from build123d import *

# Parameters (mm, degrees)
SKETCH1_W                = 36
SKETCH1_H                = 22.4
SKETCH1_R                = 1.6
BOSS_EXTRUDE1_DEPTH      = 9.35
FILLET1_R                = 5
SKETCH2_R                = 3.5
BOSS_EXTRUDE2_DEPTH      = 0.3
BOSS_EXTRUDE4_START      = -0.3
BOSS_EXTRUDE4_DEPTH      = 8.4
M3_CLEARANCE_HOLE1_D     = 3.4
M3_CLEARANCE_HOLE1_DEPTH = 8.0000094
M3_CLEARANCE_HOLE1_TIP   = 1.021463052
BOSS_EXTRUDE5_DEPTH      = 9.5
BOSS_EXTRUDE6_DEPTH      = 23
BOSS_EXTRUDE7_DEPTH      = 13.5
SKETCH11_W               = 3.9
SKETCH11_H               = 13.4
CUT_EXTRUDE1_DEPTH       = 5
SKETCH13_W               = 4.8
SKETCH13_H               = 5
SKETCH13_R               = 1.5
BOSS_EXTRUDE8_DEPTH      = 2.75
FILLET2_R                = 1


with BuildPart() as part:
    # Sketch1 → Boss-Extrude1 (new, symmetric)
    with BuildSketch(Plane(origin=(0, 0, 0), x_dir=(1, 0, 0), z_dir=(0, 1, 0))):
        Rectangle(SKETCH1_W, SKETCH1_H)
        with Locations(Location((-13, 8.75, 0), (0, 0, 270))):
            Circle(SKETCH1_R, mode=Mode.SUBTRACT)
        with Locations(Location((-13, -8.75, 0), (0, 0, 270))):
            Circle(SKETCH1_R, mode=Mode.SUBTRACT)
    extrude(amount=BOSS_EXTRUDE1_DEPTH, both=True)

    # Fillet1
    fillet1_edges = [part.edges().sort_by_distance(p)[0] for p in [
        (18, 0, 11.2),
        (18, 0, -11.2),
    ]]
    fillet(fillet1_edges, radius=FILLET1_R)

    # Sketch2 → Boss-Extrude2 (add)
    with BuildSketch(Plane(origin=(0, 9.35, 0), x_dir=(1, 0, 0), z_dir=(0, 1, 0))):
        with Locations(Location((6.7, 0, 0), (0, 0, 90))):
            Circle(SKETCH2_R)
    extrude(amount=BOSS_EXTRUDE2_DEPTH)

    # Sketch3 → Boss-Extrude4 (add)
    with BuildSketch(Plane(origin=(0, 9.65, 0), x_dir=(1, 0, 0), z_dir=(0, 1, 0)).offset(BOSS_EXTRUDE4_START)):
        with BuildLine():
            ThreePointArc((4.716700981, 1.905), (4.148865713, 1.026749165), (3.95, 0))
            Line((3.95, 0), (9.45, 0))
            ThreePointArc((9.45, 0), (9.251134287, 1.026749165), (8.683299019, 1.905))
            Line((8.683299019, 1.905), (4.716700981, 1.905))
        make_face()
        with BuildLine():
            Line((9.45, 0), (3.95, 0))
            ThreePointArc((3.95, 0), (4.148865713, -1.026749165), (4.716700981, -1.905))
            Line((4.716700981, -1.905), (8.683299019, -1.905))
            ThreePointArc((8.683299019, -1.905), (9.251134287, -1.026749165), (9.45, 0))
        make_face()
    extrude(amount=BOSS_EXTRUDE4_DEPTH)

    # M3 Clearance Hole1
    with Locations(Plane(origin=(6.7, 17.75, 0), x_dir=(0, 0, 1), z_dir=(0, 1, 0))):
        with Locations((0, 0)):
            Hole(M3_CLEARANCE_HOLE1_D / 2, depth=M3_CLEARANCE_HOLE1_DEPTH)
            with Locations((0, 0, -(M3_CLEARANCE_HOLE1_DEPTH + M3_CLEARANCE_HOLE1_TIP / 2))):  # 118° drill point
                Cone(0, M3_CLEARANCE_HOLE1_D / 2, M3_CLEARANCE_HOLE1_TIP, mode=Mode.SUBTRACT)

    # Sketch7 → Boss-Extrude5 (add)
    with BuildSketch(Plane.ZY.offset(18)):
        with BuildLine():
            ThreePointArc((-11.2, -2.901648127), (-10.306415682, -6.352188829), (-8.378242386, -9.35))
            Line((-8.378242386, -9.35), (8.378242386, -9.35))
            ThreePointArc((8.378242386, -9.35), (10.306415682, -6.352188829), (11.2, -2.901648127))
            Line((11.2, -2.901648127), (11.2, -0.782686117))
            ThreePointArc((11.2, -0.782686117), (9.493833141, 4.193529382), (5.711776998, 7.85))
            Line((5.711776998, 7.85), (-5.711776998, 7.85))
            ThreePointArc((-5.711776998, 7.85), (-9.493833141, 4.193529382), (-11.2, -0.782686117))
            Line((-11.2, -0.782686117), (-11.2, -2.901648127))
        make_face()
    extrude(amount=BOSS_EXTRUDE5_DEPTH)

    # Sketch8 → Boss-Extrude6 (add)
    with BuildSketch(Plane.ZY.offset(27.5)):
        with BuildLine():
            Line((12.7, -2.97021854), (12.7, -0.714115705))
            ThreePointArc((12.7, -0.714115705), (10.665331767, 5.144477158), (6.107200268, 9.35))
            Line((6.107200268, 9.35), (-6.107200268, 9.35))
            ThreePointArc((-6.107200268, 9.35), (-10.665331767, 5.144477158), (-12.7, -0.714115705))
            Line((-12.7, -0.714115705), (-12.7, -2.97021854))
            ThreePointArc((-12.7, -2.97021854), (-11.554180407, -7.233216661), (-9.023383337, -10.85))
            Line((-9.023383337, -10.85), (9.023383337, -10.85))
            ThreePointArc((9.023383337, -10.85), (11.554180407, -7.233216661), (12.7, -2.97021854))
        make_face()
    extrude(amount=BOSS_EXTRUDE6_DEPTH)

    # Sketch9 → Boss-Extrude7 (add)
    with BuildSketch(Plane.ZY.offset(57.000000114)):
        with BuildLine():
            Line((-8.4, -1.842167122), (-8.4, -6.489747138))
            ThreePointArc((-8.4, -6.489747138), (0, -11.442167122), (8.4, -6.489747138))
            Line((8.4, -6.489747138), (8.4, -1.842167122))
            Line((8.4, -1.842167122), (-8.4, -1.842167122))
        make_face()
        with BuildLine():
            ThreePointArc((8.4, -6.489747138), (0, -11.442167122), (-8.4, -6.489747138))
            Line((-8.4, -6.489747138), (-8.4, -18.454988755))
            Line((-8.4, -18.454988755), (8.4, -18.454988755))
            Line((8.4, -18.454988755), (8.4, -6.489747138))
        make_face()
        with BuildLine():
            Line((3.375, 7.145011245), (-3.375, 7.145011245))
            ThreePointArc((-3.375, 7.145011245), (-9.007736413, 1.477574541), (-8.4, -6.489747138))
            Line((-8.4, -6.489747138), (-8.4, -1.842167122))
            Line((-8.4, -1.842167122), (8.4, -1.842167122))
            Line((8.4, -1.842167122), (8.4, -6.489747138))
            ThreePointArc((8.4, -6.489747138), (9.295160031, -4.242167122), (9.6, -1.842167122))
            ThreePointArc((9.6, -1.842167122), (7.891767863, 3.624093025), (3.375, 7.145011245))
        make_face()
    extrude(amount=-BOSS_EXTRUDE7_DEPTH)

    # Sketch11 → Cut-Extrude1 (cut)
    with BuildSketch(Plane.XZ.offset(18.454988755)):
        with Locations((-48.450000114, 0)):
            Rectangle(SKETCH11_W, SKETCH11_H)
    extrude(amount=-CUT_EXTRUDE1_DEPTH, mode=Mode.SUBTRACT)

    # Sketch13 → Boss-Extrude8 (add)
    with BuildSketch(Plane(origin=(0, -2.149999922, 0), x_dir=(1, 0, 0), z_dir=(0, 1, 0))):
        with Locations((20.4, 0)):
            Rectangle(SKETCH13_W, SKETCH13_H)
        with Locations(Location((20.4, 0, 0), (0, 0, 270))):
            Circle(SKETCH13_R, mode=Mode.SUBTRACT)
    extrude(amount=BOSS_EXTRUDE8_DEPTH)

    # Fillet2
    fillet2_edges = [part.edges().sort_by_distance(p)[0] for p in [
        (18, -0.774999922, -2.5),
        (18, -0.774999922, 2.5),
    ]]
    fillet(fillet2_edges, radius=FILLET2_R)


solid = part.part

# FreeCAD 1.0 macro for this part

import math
import FreeCAD as App
import Part
import Sketcher

V = App.Vector


def edges_at(feature, points):
    """Names of the edges that pass closest to the given points."""
    edges = feature.Shape.Edges
    near = lambda p: min(range(len(edges)), key=lambda i: edges[i].distToShape(Part.Vertex(*p))[0])
    return sorted({f"Edge{near(p) + 1}" for p in points})


def add_polygon(sketch, points):
    """Adds a closed chain of lines whose ends are joined by coincident constraints."""
    first, n = sketch.GeometryCount, len(points)
    for a, b in zip(points, points[1:] + points[:1]):
        sketch.addGeometry(Part.LineSegment(App.Vector(*a, 0), App.Vector(*b, 0)), False)
    for i in range(n):
        sketch.addConstraint(Sketcher.Constraint("Coincident", first + i, 2, first + (i + 1) % n, 1))

doc = App.newDocument("Part")
params = doc.addObject("Spreadsheet::Sheet", "Params")
for row, (alias, value) in enumerate([
    ("sketch1_diameter", "3.2 mm"),
    ("sketch1_width", "36 mm"),
    ("sketch1_height", "22.4 mm"),
    ("pad1_length", "18.7 mm"),
    ("fillet_radius", "5 mm"),
    ("sketch2_diameter", "7 mm"),
    ("pad2_length", "0.3 mm"),
    ("sketch3_radius", "2.75 mm"),
    ("pad3_length", "8.4 mm"),
    ("sketch4_diameter", "3.4 mm"),
    ("hole_diameter", "3.4 mm"),
    ("hole_depth", "8.000009 mm"),
    ("sketch5_radius", "11.25 mm"),
    ("pad4_length", "9.5 mm"),
    ("sketch6_radius", "12.75 mm"),
    ("pad5_length", "23 mm"),
    ("sketch7_radius", "9.6 mm"),
    ("sketch7_height", "16.8 mm"),
    ("sketch7_height2", "6.75 mm"),
    ("pad6_length", "13.5 mm"),
    ("sketch8_width", "3.9 mm"),
    ("sketch8_height", "13.4 mm"),
    ("pocket1_length", "5 mm"),
    ("sketch9_diameter", "3 mm"),
    ("sketch9_height", "5 mm"),
    ("sketch9_width", "4.8 mm"),
    ("pad7_length", "2.75 mm"),
    ("fillet2_radius", "1 mm"),
], start=1):
    params.set(f"A{row}", alias)
    params.set(f"B{row}", "=" + value)
    params.setAlias(f"B{row}", alias)

body = doc.addObject("PartDesign::Body", "Body")

sketch1 = doc.addObject("Sketcher::SketchObject", "Sketch")
body.addObject(sketch1)
sketch1.AttachmentSupport = (doc.XZ_Plane, [""])
sketch1.MapMode = "FlatFace"
add_polygon(sketch1, [(-18, -11.2), (-18, 11.2), (18, 11.2), (18, -11.2)])
sketch1.addGeometry(Part.Circle(V(-13, 8.8, 0), V(0, 0, 1), 1.6), False)
sketch1.addGeometry(Part.Circle(V(-13, -8.8, 0), V(0, 0, 1), 1.6), False)
sketch1.addConstraint([
    Sketcher.Constraint("Vertical", 0),
    Sketcher.Constraint("Horizontal", 1),
    Sketcher.Constraint("Vertical", 2),
    Sketcher.Constraint("Horizontal", 3),
    Sketcher.Constraint("Equal", 4, 5),
    Sketcher.Constraint("Symmetric", 0, 2, 2, 2, -1, 1),
    Sketcher.Constraint("Symmetric", 4, 3, 5, 3, -1),
    Sketcher.Constraint("Diameter", 4, 3.2),
    Sketcher.Constraint("DistanceX", 1, 1, 1, 2, 36.0),
    Sketcher.Constraint("DistanceY", 0, 1, 0, 2, 22.4),
    Sketcher.Constraint("DistanceX", 4, 3, -1, 1, 13.0),
    Sketcher.Constraint("DistanceY", 5, 3, 4, 3, 17.5),
])
sketch1.setExpression("Constraints[11]", "Params.sketch1_diameter")
sketch1.setExpression("Constraints[12]", "Params.sketch1_width")
sketch1.setExpression("Constraints[13]", "Params.sketch1_height")
pad1 = doc.addObject("PartDesign::Pad", "Pad")
body.addObject(pad1)
pad1.Profile = sketch1
pad1.setExpression("Length", "Params.pad1_length")
pad1.Midplane = True
doc.recompute()

fillet = doc.addObject("PartDesign::Fillet", "Fillet")
body.addObject(fillet)
fillet.Base = (pad1, edges_at(pad1, [(18, 0, 11.2), (18, 0, -11.2)]))
fillet.setExpression("Radius", "Params.fillet_radius")

sketch2 = doc.addObject("Sketcher::SketchObject", "Sketch001")
body.addObject(sketch2)
sketch2.AttachmentSupport = (doc.XZ_Plane, [""])
sketch2.MapMode = "FlatFace"
sketch2.AttachmentOffset = App.Placement(V(0, 0, -9.35), App.Rotation())
sketch2.addGeometry(Part.Circle(V(6.7, 0, 0), V(0, 0, 1), 3.5), False)
sketch2.addConstraint([
    Sketcher.Constraint("PointOnObject", 0, 3, -1),
    Sketcher.Constraint("Diameter", 0, 7.0),
    Sketcher.Constraint("DistanceX", -1, 1, 0, 3, 6.7),
])
sketch2.setExpression("Constraints[1]", "Params.sketch2_diameter")
pad2 = doc.addObject("PartDesign::Pad", "Pad001")
body.addObject(pad2)
pad2.Profile = sketch2
pad2.setExpression("Length", "Params.pad2_length")
pad2.Reversed = True

sketch3 = doc.addObject("Sketcher::SketchObject", "Sketch002")
body.addObject(sketch3)
sketch3.AttachmentSupport = (doc.XZ_Plane, [""])
sketch3.MapMode = "FlatFace"
sketch3.AttachmentOffset = App.Placement(V(0, 0, -9.35), App.Rotation())
sketch3.addGeometry([
    Part.ArcOfCircle(Part.Circle(V(6.7, 0, 0), V(0, 0, 1), 2.8), math.radians(-180), math.radians(-136)),
    Part.ArcOfCircle(Part.Circle(V(6.7, 0, 0), V(0, 0, 1), 2.8), math.radians(136), math.radians(180)),
    Part.LineSegment(V(4.7, 1.9, 0), V(8.7, 1.9, 0)),
    Part.ArcOfCircle(Part.Circle(V(6.7, 0, 0), V(0, 0, 1), 2.8), math.radians(0), math.radians(44)),
    Part.ArcOfCircle(Part.Circle(V(6.7, 0, 0), V(0, 0, 1), 2.8), math.radians(-44), math.radians(0)),
    Part.LineSegment(V(8.7, -1.9, 0), V(4.7, -1.9, 0)),
], False)
sketch3.addConstraint([
    Sketcher.Constraint("Tangent", 0, 1, 1, 2),
    Sketcher.Constraint("Coincident", 1, 1, 2, 1),
    Sketcher.Constraint("Coincident", 2, 2, 3, 2),
    Sketcher.Constraint("Tangent", 3, 1, 4, 2),
    Sketcher.Constraint("Coincident", 4, 1, 5, 1),
    Sketcher.Constraint("Coincident", 5, 2, 0, 2),
    Sketcher.Constraint("Horizontal", 2),
    Sketcher.Constraint("Horizontal", 5),
    Sketcher.Constraint("Coincident", 3, 3, 0, 3),
    Sketcher.Constraint("Equal", 0, 1),
    Sketcher.Constraint("Equal", 1, 3),
    Sketcher.Constraint("Equal", 3, 4),
    Sketcher.Constraint("Symmetric", 2, 2, 4, 1, -1),
    Sketcher.Constraint("PointOnObject", 0, 1, -1),
    Sketcher.Constraint("PointOnObject", 3, 1, -1),
    Sketcher.Constraint("Radius", 0, 2.75),
    Sketcher.Constraint("DistanceX", -1, 1, 0, 3, 6.7),
    Sketcher.Constraint("DistanceX", 2, 1, 2, 2, 3.966598),
])
sketch3.setExpression("Constraints[15]", "Params.sketch3_radius")
pad3 = doc.addObject("PartDesign::Pad", "Pad002")
body.addObject(pad3)
pad3.Profile = sketch3
pad3.setExpression("Length", "Params.pad3_length")
pad3.Reversed = True

sketch4 = doc.addObject("Sketcher::SketchObject", "Sketch003")
body.addObject(sketch4)
sketch4.AttachmentSupport = (doc.XZ_Plane, [""])
sketch4.MapMode = "FlatFace"
sketch4.AttachmentOffset = App.Placement(V(0, 0, -17.75), App.Rotation())
sketch4.addGeometry(Part.Circle(V(6.7, 0, 0), V(0, 0, 1), 1.7), False)
sketch4.addConstraint([
    Sketcher.Constraint("PointOnObject", 0, 3, -1),
    Sketcher.Constraint("Diameter", 0, 3.4),
    Sketcher.Constraint("DistanceX", -1, 1, 0, 3, 6.7),
])
sketch4.setExpression("Constraints[1]", "Params.sketch4_diameter")
doc.recompute()
hole = doc.addObject("PartDesign::Hole", "Hole")
body.addObject(hole)
hole.Profile = sketch4
hole.ThreadType = "None"
hole.setExpression("Diameter", "Params.hole_diameter")
hole.DepthType = "Dimension"
hole.setExpression("Depth", "Params.hole_depth")
hole.DrillPoint = "Angled"
hole.DrillPointAngle = 118
hole.Reversed = True

sketch5 = doc.addObject("Sketcher::SketchObject", "Sketch004")
body.addObject(sketch5)
sketch5.AttachmentSupport = (doc.YZ_Plane, [""])
sketch5.MapMode = "FlatFace"
sketch5.AttachmentOffset = App.Placement(V(0, 0, -18), App.Rotation())
sketch5.addGeometry([
    Part.ArcOfCircle(Part.Circle(V(-1.8, 0, 0), V(0, 0, 1), 11.2), math.radians(-132), math.radians(-95)),
    Part.LineSegment(V(-9.3, -8.4, 0), V(-9.3, 8.4, 0)),
    Part.ArcOfCircle(Part.Circle(V(-1.8, 0, 0), V(0, 0, 1), 11.2), math.radians(95), math.radians(132)),
    Part.LineSegment(V(-2.9, 11.2, 0), V(-0.8, 11.2, 0)),
    Part.ArcOfCircle(Part.Circle(V(-1.8, 0, 0), V(0, 0, 1), 11.2), math.radians(31), math.radians(85)),
    Part.LineSegment(V(7.8, 5.7, 0), V(7.8, -5.7, 0)),
    Part.ArcOfCircle(Part.Circle(V(-1.8, 0, 0), V(0, 0, 1), 11.2), math.radians(-85), math.radians(-31)),
    Part.LineSegment(V(-0.8, -11.2, 0), V(-2.9, -11.2, 0)),
], False)
sketch5.addConstraint([
    Sketcher.Constraint("Coincident", 0, 1, 1, 1),
    Sketcher.Constraint("Coincident", 1, 2, 2, 2),
    Sketcher.Constraint("Coincident", 2, 1, 3, 1),
    Sketcher.Constraint("Coincident", 3, 2, 4, 2),
    Sketcher.Constraint("Coincident", 4, 1, 5, 1),
    Sketcher.Constraint("Coincident", 5, 2, 6, 2),
    Sketcher.Constraint("Coincident", 6, 1, 7, 1),
    Sketcher.Constraint("Coincident", 7, 2, 0, 2),
    Sketcher.Constraint("Vertical", 1),
    Sketcher.Constraint("Horizontal", 3),
    Sketcher.Constraint("Vertical", 5),
    Sketcher.Constraint("Horizontal", 7),
    Sketcher.Constraint("Coincident", 2, 3, 0, 3),
    Sketcher.Constraint("Coincident", 4, 3, 0, 3),
    Sketcher.Constraint("Coincident", 6, 3, 0, 3),
    Sketcher.Constraint("Equal", 0, 2),
    Sketcher.Constraint("Equal", 2, 4),
    Sketcher.Constraint("Equal", 4, 6),
    Sketcher.Constraint("Symmetric", 3, 2, 6, 1, -1),
    Sketcher.Constraint("Radius", 0, 11.25),
    Sketcher.Constraint("DistanceY", -1, 1, 2, 1, 11.2),
    Sketcher.Constraint("DistanceX", 0, 1, -1, 1, 9.35),
    Sketcher.Constraint("DistanceX", -1, 1, 4, 1, 7.85),
    Sketcher.Constraint("DistanceY", 1, 1, 1, 2, 16.756485),
])
sketch5.setExpression("Constraints[19]", "Params.sketch5_radius")
pad4 = doc.addObject("PartDesign::Pad", "Pad003")
body.addObject(pad4)
pad4.Profile = sketch5
pad4.setExpression("Length", "Params.pad4_length")
pad4.Reversed = True

sketch6 = doc.addObject("Sketcher::SketchObject", "Sketch005")
body.addObject(sketch6)
sketch6.AttachmentSupport = (doc.YZ_Plane, [""])
sketch6.MapMode = "FlatFace"
sketch6.AttachmentOffset = App.Placement(V(0, 0, -27.5), App.Rotation())
sketch6.addGeometry([
    Part.LineSegment(V(-3, 12.7, 0), V(-0.7, 12.7, 0)),
    Part.ArcOfCircle(Part.Circle(V(-1.8, 0, 0), V(0, 0, 1), 12.8), math.radians(29), math.radians(85)),
    Part.LineSegment(V(9.3, 6.1, 0), V(9.3, -6.1, 0)),
    Part.ArcOfCircle(Part.Circle(V(-1.8, 0, 0), V(0, 0, 1), 12.8), math.radians(-85), math.radians(-29)),
    Part.LineSegment(V(-0.7, -12.7, 0), V(-3, -12.7, 0)),
    Part.ArcOfCircle(Part.Circle(V(-1.8, 0, 0), V(0, 0, 1), 12.7), math.radians(-135), math.radians(-95)),
    Part.LineSegment(V(-10.8, -9, 0), V(-10.8, 9, 0)),
    Part.ArcOfCircle(Part.Circle(V(-1.8, 0, 0), V(0, 0, 1), 12.7), math.radians(95), math.radians(135)),
], False)
sketch6.addConstraint([
    Sketcher.Constraint("Coincident", 0, 2, 1, 2),
    Sketcher.Constraint("Coincident", 1, 1, 2, 1),
    Sketcher.Constraint("Coincident", 2, 2, 3, 2),
    Sketcher.Constraint("Coincident", 3, 1, 4, 1),
    Sketcher.Constraint("Coincident", 4, 2, 5, 2),
    Sketcher.Constraint("Coincident", 5, 1, 6, 1),
    Sketcher.Constraint("Coincident", 6, 2, 7, 2),
    Sketcher.Constraint("Coincident", 7, 1, 0, 1),
    Sketcher.Constraint("Horizontal", 0),
    Sketcher.Constraint("Vertical", 2),
    Sketcher.Constraint("Horizontal", 4),
    Sketcher.Constraint("Vertical", 6),
    Sketcher.Constraint("Coincident", 3, 3, 1, 3),
    Sketcher.Constraint("Coincident", 5, 3, 1, 3),
    Sketcher.Constraint("Coincident", 7, 3, 1, 3),
    Sketcher.Constraint("Equal", 1, 3),
    Sketcher.Constraint("Equal", 3, 5),
    Sketcher.Constraint("Equal", 5, 7),
    Sketcher.Constraint("Symmetric", 0, 2, 3, 1, -1),
    Sketcher.Constraint("Radius", 1, 12.75),
    Sketcher.Constraint("DistanceY", -1, 1, 0, 2, 12.7),
    Sketcher.Constraint("DistanceX", -1, 1, 1, 1, 9.35),
    Sketcher.Constraint("DistanceX", 5, 1, -1, 1, 10.85),
    Sketcher.Constraint("DistanceY", 2, 2, 2, 1, 12.214401),
])
sketch6.setExpression("Constraints[19]", "Params.sketch6_radius")
pad5 = doc.addObject("PartDesign::Pad", "Pad004")
body.addObject(pad5)
pad5.Profile = sketch6
pad5.setExpression("Length", "Params.pad5_length")
pad5.Reversed = True

sketch7 = doc.addObject("Sketcher::SketchObject", "Sketch006")
body.addObject(sketch7)
sketch7.AttachmentSupport = (doc.YZ_Plane, [""])
sketch7.MapMode = "FlatFace"
sketch7.AttachmentOffset = App.Placement(V(0, 0, -57), App.Rotation())
sketch7.addGeometry([
    Part.LineSegment(V(-6.5, -8.4, 0), V(-18.5, -8.4, 0)),
    Part.LineSegment(V(-18.5, -8.4, 0), V(-18.5, 8.4, 0)),
    Part.LineSegment(V(-18.5, 8.4, 0), V(-6.5, 8.4, 0)),
    Part.ArcOfCircle(Part.Circle(V(-1.8, 0, 0), V(0, 0, 1), 9.6), math.radians(90), math.radians(119)),
    Part.ArcOfCircle(Part.Circle(V(-1.8, 0, 0), V(0, 0, 1), 9.6), math.radians(21), math.radians(90)),
    Part.LineSegment(V(7.1, 3.4, 0), V(7.1, -3.4, 0)),
    Part.ArcOfCircle(Part.Circle(V(-1.8, 0, 0), V(0, 0, 1), 9.6), math.radians(-119), math.radians(-21)),
], False)
sketch7.addConstraint([
    Sketcher.Constraint("Coincident", 0, 2, 1, 1),
    Sketcher.Constraint("Coincident", 1, 2, 2, 1),
    Sketcher.Constraint("Coincident", 2, 2, 3, 2),
    Sketcher.Constraint("Tangent", 3, 1, 4, 2),
    Sketcher.Constraint("Coincident", 4, 1, 5, 1),
    Sketcher.Constraint("Coincident", 5, 2, 6, 2),
    Sketcher.Constraint("Coincident", 6, 1, 0, 1),
    Sketcher.Constraint("Horizontal", 0),
    Sketcher.Constraint("Vertical", 1),
    Sketcher.Constraint("Horizontal", 2),
    Sketcher.Constraint("Vertical", 5),
    Sketcher.Constraint("Coincident", 6, 3, 3, 3),
    Sketcher.Constraint("Equal", 3, 4),
    Sketcher.Constraint("Equal", 4, 6),
    Sketcher.Constraint("Symmetric", 2, 2, 6, 1, -1),
    Sketcher.Constraint("Vertical", 6, 3, 3, 1),
    Sketcher.Constraint("Radius", 3, 9.6),
    Sketcher.Constraint("DistanceY", 1, 1, 1, 2, 16.8),
    Sketcher.Constraint("DistanceY", 5, 2, 5, 1, 6.75),
    Sketcher.Constraint("DistanceX", 0, 2, 0, 1, 11.965242),
    Sketcher.Constraint("DistanceX", 0, 2, -1, 1, 18.454989),
])
sketch7.setExpression("Constraints[16]", "Params.sketch7_radius")
sketch7.setExpression("Constraints[17]", "Params.sketch7_height")
sketch7.setExpression("Constraints[18]", "Params.sketch7_height2")
pad6 = doc.addObject("PartDesign::Pad", "Pad005")
body.addObject(pad6)
pad6.Profile = sketch7
pad6.setExpression("Length", "Params.pad6_length")

sketch8 = doc.addObject("Sketcher::SketchObject", "Sketch007")
body.addObject(sketch8)
sketch8.AttachmentSupport = (doc.XZ_Plane, [""])
sketch8.MapMode = "FlatFace"
sketch8.AttachmentOffset = App.Placement(V(0, 0, 18.454989), App.Rotation())
add_polygon(sketch8, [(-50.4, 6.7), (-50.4, -6.7), (-46.5, -6.7), (-46.5, 6.7)])
sketch8.addConstraint([
    Sketcher.Constraint("Vertical", 0),
    Sketcher.Constraint("Horizontal", 1),
    Sketcher.Constraint("Vertical", 2),
    Sketcher.Constraint("Horizontal", 3),
    Sketcher.Constraint("DistanceX", 1, 1, 1, 2, 3.9),
    Sketcher.Constraint("DistanceY", 0, 2, 0, 1, 13.4),
    Sketcher.Constraint("DistanceX", 0, 2, -1, 1, 50.4),
    Sketcher.Constraint("DistanceY", 0, 2, -1, 1, 6.7),
])
sketch8.setExpression("Constraints[8]", "Params.sketch8_width")
sketch8.setExpression("Constraints[9]", "Params.sketch8_height")
pocket1 = doc.addObject("PartDesign::Pocket", "Pocket")
body.addObject(pocket1)
pocket1.Profile = sketch8
pocket1.setExpression("Length", "Params.pocket1_length")

sketch9 = doc.addObject("Sketcher::SketchObject", "Sketch008")
body.addObject(sketch9)
sketch9.AttachmentSupport = (doc.XZ_Plane, [""])
sketch9.MapMode = "FlatFace"
sketch9.AttachmentOffset = App.Placement(V(0, 0, 2.15), App.Rotation())
add_polygon(sketch9, [(18, -2.5), (18, 2.5), (22.8, 2.5), (22.8, -2.5)])
sketch9.addGeometry(Part.Circle(V(20.4, 0, 0), V(0, 0, 1), 1.5), False)
sketch9.addConstraint([
    Sketcher.Constraint("Vertical", 0),
    Sketcher.Constraint("Horizontal", 1),
    Sketcher.Constraint("Vertical", 2),
    Sketcher.Constraint("Horizontal", 3),
    Sketcher.Constraint("PointOnObject", 4, 3, -1),
    Sketcher.Constraint("Diameter", 4, 3.0),
    Sketcher.Constraint("DistanceY", 0, 1, 0, 2, 5.0),
    Sketcher.Constraint("DistanceX", 1, 1, 1, 2, 4.8),
    Sketcher.Constraint("DistanceX", -1, 1, 0, 2, 18.0),
    Sketcher.Constraint("DistanceX", -1, 1, 4, 3, 20.4),
    Sketcher.Constraint("DistanceY", -1, 1, 0, 2, 2.5),
])
sketch9.setExpression("Constraints[9]", "Params.sketch9_diameter")
sketch9.setExpression("Constraints[10]", "Params.sketch9_height")
sketch9.setExpression("Constraints[11]", "Params.sketch9_width")
pad7 = doc.addObject("PartDesign::Pad", "Pad006")
body.addObject(pad7)
pad7.Profile = sketch9
pad7.setExpression("Length", "Params.pad7_length")
pad7.Reversed = True
doc.recompute()

fillet2 = doc.addObject("PartDesign::Fillet", "Fillet001")
body.addObject(fillet2)
fillet2.Base = (pad7, edges_at(pad7, [(18, -0.775, -2.5), (18, -0.775, 2.5)]))
fillet2.setExpression("Radius", "Params.fillet2_radius")

doc.recompute()
